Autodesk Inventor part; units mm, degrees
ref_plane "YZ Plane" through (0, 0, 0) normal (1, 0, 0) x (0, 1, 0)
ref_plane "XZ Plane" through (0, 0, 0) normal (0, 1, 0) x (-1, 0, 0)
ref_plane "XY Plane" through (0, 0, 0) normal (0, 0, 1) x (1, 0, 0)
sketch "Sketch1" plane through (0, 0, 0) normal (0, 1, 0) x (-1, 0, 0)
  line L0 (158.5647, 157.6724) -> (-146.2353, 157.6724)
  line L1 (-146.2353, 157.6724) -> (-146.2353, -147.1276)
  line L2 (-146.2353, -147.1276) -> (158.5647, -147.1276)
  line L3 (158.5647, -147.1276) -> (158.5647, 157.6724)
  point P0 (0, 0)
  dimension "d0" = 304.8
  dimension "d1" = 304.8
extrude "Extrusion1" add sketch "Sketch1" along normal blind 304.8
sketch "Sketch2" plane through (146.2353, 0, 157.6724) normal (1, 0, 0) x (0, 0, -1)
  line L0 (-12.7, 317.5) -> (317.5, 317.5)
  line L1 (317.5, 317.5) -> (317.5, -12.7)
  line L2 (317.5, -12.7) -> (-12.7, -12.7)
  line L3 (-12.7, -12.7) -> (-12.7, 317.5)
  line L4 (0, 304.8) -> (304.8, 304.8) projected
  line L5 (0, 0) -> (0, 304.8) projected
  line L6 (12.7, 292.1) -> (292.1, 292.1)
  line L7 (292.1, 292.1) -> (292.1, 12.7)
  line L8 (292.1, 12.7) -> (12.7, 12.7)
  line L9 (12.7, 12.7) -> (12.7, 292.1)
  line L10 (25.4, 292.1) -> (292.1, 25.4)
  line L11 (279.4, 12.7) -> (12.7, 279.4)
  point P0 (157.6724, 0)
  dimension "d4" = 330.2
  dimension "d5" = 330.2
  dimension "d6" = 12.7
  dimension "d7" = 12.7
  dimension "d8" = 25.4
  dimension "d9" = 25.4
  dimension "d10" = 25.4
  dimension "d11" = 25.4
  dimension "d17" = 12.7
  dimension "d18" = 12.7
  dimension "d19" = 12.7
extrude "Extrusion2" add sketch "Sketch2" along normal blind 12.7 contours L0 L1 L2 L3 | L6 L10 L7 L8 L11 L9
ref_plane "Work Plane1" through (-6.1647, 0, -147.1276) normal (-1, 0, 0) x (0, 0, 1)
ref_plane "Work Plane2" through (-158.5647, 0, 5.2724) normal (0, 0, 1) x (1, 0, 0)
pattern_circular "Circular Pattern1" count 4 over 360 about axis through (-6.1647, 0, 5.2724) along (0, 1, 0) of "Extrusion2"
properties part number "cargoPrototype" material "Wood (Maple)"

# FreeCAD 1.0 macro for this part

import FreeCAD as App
import Part
import Sketcher
from FreeCAD import Vector
Q = App.Units.Quantity

doc = App.newDocument("Part")
body = doc.addObject("PartDesign::Body", "Body")

# Sketch on XZ plane
sketch1 = body.newObject("Sketcher::SketchObject", "Sketch")
sketch1.AttachmentSupport = (doc.getObject("XZ_Plane"), [""])
sketch1.MapMode = "FlatFace"
sketch1.addGeometry([
    Part.LineSegment(Vector(-158.5647, -147.1276, 0), Vector(-158.5647, 157.6724, 0)),
    Part.LineSegment(Vector(-158.5647, 157.6724, 0), Vector(146.2353, 157.6724, 0)),
    Part.LineSegment(Vector(146.2353, 157.6724, 0), Vector(146.2353, -147.1276, 0)),
    Part.LineSegment(Vector(146.2353, -147.1276, 0), Vector(-158.5647, -147.1276, 0)),
], False)
sketch1.addConstraint([
    Sketcher.Constraint("Coincident", 0, 2, 1, 1),
    Sketcher.Constraint("Coincident", 1, 2, 2, 1),
    Sketcher.Constraint("Coincident", 2, 2, 3, 1),
    Sketcher.Constraint("Coincident", 3, 2, 0, 1),
    Sketcher.Constraint("Vertical", 0),
    Sketcher.Constraint("Horizontal", 1),
    Sketcher.Constraint("Vertical", 2),
    Sketcher.Constraint("Horizontal", 3),
    Sketcher.Constraint("Equal", 3, 0),
    Sketcher.Constraint("DistanceX", 1, 1, 1, 2, Q("12 in")),
    Sketcher.Constraint("DistanceX", 0, 2, -1, 1, Q("6.2427 in")),
    Sketcher.Constraint("DistanceY", -1, 1, 0, 2, Q("157.6724 mm")),
])
pad1 = body.newObject("PartDesign::Pad", "Pad")
pad1.Profile = sketch1
pad1.Length = Q("12 in")
pad1.Reversed = True

# Sketch on YZ plane
sketch2 = body.newObject("Sketcher::SketchObject", "Sketch001")
sketch2.AttachmentSupport = (doc.getObject("YZ_Plane"), [""])
sketch2.MapMode = "FlatFace"
sketch2.AttachmentOffset = App.Placement(Vector(0, 0, 5.7572953 * 25.4), App.Rotation())
sketch2.addGeometry([
    Part.LineSegment(Vector(317.5, -159.8276, 0), Vector(317.5, 170.3724, 0)),  # 0
    Part.LineSegment(Vector(317.5, 170.3724, 0), Vector(-12.7, 170.3724, 0)),  # 1
    Part.LineSegment(Vector(-12.7, 170.3724, 0), Vector(-12.7, -159.8276, 0)),  # 2
    Part.LineSegment(Vector(-12.7, -159.8276, 0), Vector(317.5, -159.8276, 0)),  # 3
    Part.LineSegment(Vector(12.7, 144.9724, 0), Vector(279.4, 144.9724, 0)),  # 4
    Part.LineSegment(Vector(279.4, 144.9724, 0), Vector(12.7, -121.7276, 0)),  # 5
    Part.LineSegment(Vector(12.7, -121.7276, 0), Vector(12.7, 144.9724, 0)),  # 6
    Part.LineSegment(Vector(292.1, -134.4276, 0), Vector(25.4, -134.4276, 0)),  # 7
    Part.LineSegment(Vector(25.4, -134.4276, 0), Vector(292.1, 132.2724, 0)),  # 8
    Part.LineSegment(Vector(292.1, 132.2724, 0), Vector(292.1, -134.4276, 0)),  # 9
], False)
sketch2.addConstraint([
    Sketcher.Constraint("Coincident", 0, 2, 1, 1),
    Sketcher.Constraint("Coincident", 1, 2, 2, 1),
    Sketcher.Constraint("Coincident", 2, 2, 3, 1),
    Sketcher.Constraint("Coincident", 3, 2, 0, 1),
    Sketcher.Constraint("Coincident", 4, 2, 5, 1),
    Sketcher.Constraint("Coincident", 5, 2, 6, 1),
    Sketcher.Constraint("Coincident", 6, 2, 4, 1),
    Sketcher.Constraint("Coincident", 7, 2, 8, 1),
    Sketcher.Constraint("Coincident", 8, 2, 9, 1),
    Sketcher.Constraint("Coincident", 9, 2, 7, 1),
    Sketcher.Constraint("Vertical", 0),
    Sketcher.Constraint("Horizontal", 1),
    Sketcher.Constraint("Vertical", 2),
    Sketcher.Constraint("Horizontal", 3),
    Sketcher.Constraint("Horizontal", 4),
    Sketcher.Constraint("Vertical", 6),
    Sketcher.Constraint("Horizontal", 7),
    Sketcher.Constraint("Vertical", 9),
    Sketcher.Constraint("Parallel", 5, 8),
    Sketcher.Constraint("Equal", 4, 7),
    Sketcher.Constraint("Equal", 3, 0),
    Sketcher.Constraint("Equal", 7, 6),
    Sketcher.Constraint("DistanceX", 1, 2, 1, 1, Q("13 in")),
    Sketcher.Constraint("DistanceX", -1, 1, 7, 2, Q("1 in")),
    Sketcher.Constraint("DistanceY", 4, 2, 0, 2, Q("1 in")),
    Sketcher.Constraint("DistanceX", 2, 2, 5, 2, Q("1 in")),
    Sketcher.Constraint("DistanceY", 2, 2, 7, 2, Q("1 in")),
    Sketcher.Constraint("DistanceX", 8, 2, 0, 2, Q("1 in")),
    Sketcher.Constraint("DistanceX", 1, 2, -1, 1, Q("0.5 in")),
    Sketcher.Constraint("DistanceY", -1, 1, 0, 2, Q("170.3724 mm")),
])
pad2 = body.newObject("PartDesign::Pad", "Pad001")
pad2.Profile = sketch2
pad2.Length = Q("0.5 in")
doc.recompute()

datumline = body.newObject("PartDesign::Line", "DatumLine")
datumline.Placement = App.Placement(Vector(-6.1647, 0, 5.2724), App.Rotation(Vector(0, 0, 1), Vector(0, 1, 0)))
polarpattern = body.newObject("PartDesign::PolarPattern", "PolarPattern")
polarpattern.Originals = [pad2]
polarpattern.Axis = (datumline, [""])
polarpattern.Angle = 360
polarpattern.Occurrences = 4
body.Tip = polarpattern

doc.recompute()
